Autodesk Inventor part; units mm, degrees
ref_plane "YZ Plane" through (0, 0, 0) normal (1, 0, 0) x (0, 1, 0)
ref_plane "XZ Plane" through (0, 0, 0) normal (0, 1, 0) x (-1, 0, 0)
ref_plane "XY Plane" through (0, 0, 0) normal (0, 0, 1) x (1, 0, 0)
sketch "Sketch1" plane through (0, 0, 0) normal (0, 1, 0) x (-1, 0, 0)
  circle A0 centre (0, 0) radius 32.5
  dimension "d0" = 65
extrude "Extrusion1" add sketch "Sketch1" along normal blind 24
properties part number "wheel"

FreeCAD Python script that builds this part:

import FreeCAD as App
import Part
import Sketcher
from FreeCAD import Vector
Q = App.Units.Quantity

doc = App.newDocument("Part")
body = doc.addObject("PartDesign::Body", "Body")

sketch1 = body.newObject("Sketcher::SketchObject", "Sketch")
sketch1.AttachmentSupport = (doc.getObject("XZ_Plane"), [""])
sketch1.MapMode = "FlatFace"
sketch1.addGeometry(Part.Circle(Vector(0, 0, 0), Vector(0, 0, 1), 32.5), False)
sketch1.addConstraint(Sketcher.Constraint("Coincident", 0, 3, -1, 1))
sketch1.addConstraint(Sketcher.Constraint("Diameter", 0, Q("65 mm")))
pad1 = body.newObject("PartDesign::Pad", "Pad")
pad1.Profile = sketch1
pad1.Length = 24
pad1.Reversed = True

doc.recompute()
